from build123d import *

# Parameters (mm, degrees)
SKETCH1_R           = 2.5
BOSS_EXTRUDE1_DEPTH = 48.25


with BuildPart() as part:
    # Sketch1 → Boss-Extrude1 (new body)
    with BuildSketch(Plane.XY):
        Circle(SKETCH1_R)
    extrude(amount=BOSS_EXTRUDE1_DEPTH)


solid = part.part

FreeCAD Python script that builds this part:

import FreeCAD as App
import Part
import Sketcher
from FreeCAD import Vector
Q = App.Units.Quantity

doc = App.newDocument("Part")
body = doc.addObject("PartDesign::Body", "Body")

sketch1 = body.newObject("Sketcher::SketchObject", "Sketch")
sketch1.AttachmentSupport = (doc.getObject("XY_Plane"), [""])
sketch1.MapMode = "FlatFace"
sketch1.addGeometry(Part.Circle(Vector(0, 0, 0), Vector(0, 0, 1), 2.5), False)
sketch1.addConstraint([
    Sketcher.Constraint("Coincident", 0, 3, -1, 1),
    Sketcher.Constraint("Diameter", 0, Q("5 mm")),
])
pad1 = body.newObject("PartDesign::Pad", "Pad")
pad1.Profile = sketch1
pad1.Length = 48.25

doc.recompute()
